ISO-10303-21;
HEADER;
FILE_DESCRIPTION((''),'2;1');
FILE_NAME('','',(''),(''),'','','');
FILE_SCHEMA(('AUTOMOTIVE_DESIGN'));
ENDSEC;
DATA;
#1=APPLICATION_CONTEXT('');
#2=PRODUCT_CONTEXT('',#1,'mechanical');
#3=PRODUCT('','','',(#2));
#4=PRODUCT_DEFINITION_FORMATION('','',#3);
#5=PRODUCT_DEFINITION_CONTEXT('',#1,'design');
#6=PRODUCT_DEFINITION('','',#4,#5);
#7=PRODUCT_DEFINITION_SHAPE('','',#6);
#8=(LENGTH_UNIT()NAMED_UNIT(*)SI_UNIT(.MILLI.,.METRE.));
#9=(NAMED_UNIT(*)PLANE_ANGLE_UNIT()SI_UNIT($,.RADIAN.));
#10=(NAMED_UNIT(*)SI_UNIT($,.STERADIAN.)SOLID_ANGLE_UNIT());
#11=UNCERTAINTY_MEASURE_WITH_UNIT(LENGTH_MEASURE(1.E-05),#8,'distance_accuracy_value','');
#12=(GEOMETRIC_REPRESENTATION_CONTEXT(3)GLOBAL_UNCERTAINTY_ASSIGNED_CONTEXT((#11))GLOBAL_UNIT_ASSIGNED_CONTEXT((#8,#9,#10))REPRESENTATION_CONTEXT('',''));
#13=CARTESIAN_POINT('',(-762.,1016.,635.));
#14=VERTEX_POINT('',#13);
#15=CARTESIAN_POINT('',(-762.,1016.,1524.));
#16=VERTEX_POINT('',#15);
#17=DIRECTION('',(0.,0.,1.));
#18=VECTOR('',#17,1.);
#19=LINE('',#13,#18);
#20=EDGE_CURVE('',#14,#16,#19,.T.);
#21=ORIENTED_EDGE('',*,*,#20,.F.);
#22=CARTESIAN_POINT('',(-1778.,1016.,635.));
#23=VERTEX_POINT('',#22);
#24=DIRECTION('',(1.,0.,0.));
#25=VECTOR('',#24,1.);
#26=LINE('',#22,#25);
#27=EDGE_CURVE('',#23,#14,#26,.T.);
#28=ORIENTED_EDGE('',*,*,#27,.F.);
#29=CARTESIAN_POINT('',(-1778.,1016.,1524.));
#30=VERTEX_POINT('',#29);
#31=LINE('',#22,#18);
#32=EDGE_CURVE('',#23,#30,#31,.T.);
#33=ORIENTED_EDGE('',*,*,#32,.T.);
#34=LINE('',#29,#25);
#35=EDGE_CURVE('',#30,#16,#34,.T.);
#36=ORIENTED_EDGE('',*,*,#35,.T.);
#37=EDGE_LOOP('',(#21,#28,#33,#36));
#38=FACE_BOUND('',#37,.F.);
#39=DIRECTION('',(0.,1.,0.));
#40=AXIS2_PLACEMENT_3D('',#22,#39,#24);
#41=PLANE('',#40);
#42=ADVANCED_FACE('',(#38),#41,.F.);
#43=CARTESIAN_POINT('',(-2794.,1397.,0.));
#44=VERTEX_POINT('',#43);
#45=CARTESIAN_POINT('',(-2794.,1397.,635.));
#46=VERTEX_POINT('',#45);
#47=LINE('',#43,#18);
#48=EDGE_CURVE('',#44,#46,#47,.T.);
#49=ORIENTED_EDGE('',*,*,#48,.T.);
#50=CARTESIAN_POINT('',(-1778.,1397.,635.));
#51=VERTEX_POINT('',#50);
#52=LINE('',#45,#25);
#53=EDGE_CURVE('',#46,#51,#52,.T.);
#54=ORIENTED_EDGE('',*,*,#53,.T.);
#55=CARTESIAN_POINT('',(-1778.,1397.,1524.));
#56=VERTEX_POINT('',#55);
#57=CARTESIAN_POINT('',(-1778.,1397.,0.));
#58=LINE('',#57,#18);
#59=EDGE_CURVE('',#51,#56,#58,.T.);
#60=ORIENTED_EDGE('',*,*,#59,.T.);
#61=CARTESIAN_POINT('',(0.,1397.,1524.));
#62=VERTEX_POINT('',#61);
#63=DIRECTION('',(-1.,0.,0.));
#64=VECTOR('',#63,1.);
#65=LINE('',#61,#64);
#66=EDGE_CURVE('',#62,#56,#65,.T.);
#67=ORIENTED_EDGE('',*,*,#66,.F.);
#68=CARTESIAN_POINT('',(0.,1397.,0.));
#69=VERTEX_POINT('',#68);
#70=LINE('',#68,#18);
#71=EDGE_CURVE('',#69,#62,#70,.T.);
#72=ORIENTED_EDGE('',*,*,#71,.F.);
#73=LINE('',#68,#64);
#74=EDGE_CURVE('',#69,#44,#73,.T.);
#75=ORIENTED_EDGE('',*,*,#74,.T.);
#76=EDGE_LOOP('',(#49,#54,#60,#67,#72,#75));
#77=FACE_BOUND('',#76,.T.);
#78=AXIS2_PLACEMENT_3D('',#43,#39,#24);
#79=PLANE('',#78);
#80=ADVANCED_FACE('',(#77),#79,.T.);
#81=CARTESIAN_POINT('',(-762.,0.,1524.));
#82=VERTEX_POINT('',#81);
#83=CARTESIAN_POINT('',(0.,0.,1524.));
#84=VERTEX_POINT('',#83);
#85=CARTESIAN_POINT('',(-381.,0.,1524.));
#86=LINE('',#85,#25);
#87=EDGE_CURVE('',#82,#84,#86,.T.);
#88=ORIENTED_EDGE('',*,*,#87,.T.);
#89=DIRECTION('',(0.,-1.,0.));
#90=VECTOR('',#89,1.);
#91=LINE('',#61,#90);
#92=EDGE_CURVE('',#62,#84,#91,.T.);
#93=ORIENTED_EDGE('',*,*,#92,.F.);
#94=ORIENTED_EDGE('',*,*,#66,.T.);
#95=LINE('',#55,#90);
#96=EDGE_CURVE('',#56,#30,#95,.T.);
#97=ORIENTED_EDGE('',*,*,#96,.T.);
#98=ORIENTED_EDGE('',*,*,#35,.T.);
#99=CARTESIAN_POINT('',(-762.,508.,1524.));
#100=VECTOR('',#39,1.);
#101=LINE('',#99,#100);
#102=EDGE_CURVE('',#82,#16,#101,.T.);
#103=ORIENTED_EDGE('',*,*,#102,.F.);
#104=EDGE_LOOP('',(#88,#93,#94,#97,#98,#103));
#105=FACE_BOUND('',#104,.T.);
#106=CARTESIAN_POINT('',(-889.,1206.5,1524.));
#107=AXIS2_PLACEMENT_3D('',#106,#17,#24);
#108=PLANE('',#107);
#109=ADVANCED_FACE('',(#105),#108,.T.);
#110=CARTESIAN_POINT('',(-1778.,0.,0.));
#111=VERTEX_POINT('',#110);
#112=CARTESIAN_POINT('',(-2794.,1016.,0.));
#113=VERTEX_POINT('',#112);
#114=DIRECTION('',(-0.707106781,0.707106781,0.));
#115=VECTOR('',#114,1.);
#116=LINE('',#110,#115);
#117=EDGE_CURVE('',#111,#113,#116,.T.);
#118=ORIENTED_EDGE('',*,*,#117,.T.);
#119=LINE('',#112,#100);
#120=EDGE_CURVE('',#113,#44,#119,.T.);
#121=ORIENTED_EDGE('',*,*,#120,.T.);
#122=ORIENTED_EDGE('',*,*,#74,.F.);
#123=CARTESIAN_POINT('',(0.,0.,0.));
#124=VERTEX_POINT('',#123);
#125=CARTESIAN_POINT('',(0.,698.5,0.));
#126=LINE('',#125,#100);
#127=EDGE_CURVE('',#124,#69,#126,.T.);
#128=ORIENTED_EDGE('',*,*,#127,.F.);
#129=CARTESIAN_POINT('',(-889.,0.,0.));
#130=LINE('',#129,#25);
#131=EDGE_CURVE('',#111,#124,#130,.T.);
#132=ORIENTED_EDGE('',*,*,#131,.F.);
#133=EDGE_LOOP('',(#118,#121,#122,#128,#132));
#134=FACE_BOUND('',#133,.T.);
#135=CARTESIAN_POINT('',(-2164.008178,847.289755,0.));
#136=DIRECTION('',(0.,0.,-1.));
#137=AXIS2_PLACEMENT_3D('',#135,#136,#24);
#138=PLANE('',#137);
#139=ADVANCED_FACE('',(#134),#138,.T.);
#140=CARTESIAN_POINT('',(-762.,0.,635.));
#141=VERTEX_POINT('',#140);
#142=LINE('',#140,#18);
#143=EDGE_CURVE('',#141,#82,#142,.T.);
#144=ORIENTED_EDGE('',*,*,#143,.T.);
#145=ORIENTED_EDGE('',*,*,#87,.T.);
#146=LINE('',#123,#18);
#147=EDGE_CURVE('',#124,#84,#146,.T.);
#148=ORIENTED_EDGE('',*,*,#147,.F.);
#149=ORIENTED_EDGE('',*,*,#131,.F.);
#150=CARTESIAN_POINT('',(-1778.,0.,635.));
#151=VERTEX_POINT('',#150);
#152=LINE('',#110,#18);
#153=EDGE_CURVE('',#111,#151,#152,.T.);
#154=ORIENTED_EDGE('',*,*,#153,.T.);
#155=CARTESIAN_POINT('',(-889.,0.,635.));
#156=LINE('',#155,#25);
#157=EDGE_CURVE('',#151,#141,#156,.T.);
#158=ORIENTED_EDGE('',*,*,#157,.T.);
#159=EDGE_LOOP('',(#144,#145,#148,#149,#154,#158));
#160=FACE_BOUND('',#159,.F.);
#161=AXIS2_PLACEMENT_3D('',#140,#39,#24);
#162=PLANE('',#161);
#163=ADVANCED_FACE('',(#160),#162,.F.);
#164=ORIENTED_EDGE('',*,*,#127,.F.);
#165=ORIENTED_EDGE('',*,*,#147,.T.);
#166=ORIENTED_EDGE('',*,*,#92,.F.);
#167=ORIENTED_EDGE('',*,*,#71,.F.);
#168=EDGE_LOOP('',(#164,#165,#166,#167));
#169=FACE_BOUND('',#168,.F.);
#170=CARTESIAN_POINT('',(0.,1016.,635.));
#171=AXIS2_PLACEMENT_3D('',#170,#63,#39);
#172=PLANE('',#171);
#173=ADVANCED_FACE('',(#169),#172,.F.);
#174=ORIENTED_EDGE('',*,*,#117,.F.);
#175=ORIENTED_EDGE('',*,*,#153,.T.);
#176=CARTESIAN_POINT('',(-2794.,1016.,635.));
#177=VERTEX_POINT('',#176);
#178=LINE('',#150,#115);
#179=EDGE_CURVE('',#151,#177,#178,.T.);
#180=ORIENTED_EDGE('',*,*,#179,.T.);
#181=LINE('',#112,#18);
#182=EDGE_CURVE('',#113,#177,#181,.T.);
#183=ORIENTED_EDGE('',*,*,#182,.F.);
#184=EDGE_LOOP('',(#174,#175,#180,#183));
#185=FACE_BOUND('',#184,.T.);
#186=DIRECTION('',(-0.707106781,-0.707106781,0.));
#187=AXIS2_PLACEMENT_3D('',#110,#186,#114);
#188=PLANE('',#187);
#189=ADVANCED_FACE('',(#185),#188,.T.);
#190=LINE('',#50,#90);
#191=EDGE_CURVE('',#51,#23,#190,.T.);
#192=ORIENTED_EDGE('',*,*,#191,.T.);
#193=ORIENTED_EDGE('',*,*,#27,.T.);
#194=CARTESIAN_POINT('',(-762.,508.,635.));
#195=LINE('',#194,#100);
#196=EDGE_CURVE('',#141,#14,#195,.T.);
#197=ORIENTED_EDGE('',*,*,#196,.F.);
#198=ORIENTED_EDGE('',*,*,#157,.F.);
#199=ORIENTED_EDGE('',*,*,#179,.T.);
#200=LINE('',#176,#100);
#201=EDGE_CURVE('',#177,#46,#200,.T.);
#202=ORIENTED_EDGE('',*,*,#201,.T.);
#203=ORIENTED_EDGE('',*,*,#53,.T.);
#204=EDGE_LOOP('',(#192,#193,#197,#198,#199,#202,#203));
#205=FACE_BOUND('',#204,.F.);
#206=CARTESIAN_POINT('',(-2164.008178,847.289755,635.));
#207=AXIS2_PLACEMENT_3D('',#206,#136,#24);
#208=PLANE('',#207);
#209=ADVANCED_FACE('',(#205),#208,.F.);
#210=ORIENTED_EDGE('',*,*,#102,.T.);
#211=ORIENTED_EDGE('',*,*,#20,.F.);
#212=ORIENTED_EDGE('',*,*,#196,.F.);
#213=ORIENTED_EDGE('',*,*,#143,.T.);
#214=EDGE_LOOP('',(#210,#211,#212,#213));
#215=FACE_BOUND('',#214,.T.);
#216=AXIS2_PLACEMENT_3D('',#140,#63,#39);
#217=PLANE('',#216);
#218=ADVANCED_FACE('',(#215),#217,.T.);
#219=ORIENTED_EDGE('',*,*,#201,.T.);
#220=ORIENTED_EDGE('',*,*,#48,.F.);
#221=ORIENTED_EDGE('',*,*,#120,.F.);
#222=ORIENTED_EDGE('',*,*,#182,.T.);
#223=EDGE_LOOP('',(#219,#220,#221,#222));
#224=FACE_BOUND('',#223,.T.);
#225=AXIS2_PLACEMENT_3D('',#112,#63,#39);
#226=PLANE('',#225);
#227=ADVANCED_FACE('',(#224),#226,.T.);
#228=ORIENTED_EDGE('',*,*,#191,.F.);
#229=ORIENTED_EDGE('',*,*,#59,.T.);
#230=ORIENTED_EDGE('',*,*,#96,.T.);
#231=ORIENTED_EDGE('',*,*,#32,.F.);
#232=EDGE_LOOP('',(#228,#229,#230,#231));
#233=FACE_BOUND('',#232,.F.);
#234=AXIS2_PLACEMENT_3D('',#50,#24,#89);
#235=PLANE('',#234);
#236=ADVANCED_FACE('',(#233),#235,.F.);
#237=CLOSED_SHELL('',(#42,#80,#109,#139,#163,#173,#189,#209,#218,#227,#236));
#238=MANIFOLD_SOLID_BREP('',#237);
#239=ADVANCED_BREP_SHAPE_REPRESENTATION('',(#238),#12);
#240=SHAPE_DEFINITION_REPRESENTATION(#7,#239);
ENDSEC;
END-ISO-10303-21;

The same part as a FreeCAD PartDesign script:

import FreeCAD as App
import Part
import Sketcher

V = App.Vector
Q = App.Units.Quantity


def add_polygon(sketch, points):
    """Adds a closed chain of lines whose ends are joined by coincident constraints."""
    first, n = sketch.GeometryCount, len(points)
    for a, b in zip(points, points[1:] + points[:1]):
        sketch.addGeometry(Part.LineSegment(App.Vector(*a, 0), App.Vector(*b, 0)), False)
    for i in range(n):
        sketch.addConstraint(Sketcher.Constraint("Coincident", first + i, 2, first + (i + 1) % n, 1))

doc = App.newDocument("Part")
body = doc.addObject("PartDesign::Body", "Body")

# Sketch on XY plane
sketch1 = body.newObject("Sketcher::SketchObject", "Sketch")
sketch1.AttachmentSupport = (doc.getObject("XY_Plane"), [""])
sketch1.MapMode = "FlatFace"
add_polygon(sketch1, [(-1778, 1397), (-1778, 0), (0, 0), (0, 1397)])  # lines 0-3
sketch1.addConstraint(Sketcher.Constraint("Vertical", 0))
sketch1.addConstraint(Sketcher.Constraint("Horizontal", 1))
sketch1.addConstraint(Sketcher.Constraint("Vertical", 2))
sketch1.addConstraint(Sketcher.Constraint("Horizontal", 3))
sketch1.addConstraint(Sketcher.Constraint("Coincident", 1, 2, -1, 1))
sketch1.addConstraint(Sketcher.Constraint("DistanceX", 1, 1, 1, 2, Q("70 in")))
sketch1.addConstraint(Sketcher.Constraint("DistanceY", 0, 2, 0, 1, Q("55 in")))
pad1 = body.newObject("PartDesign::Pad", "Pad")
pad1.Profile = sketch1
pad1.Length = Q("25 in")

# Sketch on XY plane
sketch2 = body.newObject("Sketcher::SketchObject", "Sketch001")
sketch2.AttachmentSupport = (doc.getObject("XY_Plane"), [""])
sketch2.MapMode = "FlatFace"
sketch2.AttachmentOffset = App.Placement(V(0, 0, 25 * 25.4), App.Rotation())
add_polygon(sketch2, [(-762, 1016), (-762, 0), (0, 0), (0, 1016)])  # lines 0-3
sketch2.addConstraint(Sketcher.Constraint("Vertical", 0))
sketch2.addConstraint(Sketcher.Constraint("Horizontal", 1))
sketch2.addConstraint(Sketcher.Constraint("Vertical", 2))
sketch2.addConstraint(Sketcher.Constraint("Horizontal", 3))
sketch2.addConstraint(Sketcher.Constraint("Coincident", 1, 2, -1, 1))
sketch2.addConstraint(Sketcher.Constraint("DistanceX", 1, 1, 1, 2, Q("30 in")))
sketch2.addConstraint(Sketcher.Constraint("DistanceY", 0, 2, 0, 1, Q("40 in")))
pad2 = body.newObject("PartDesign::Pad", "Pad001")
pad2.Profile = sketch2
pad2.Length = Q("45 in")

# Sketch on XY plane
sketch3 = body.newObject("Sketcher::SketchObject", "Sketch002")
sketch3.AttachmentSupport = (doc.getObject("XY_Plane"), [""])
sketch3.MapMode = "FlatFace"
sketch3.AttachmentOffset = App.Placement(V(0, 0, 25 * 25.4), App.Rotation())
add_polygon(sketch3, [(0, 1016), (0, 1397), (-1778, 1397), (-1778, 1016)])  # lines 0-3
sketch3.addConstraint(Sketcher.Constraint("Vertical", 0))
sketch3.addConstraint(Sketcher.Constraint("Horizontal", 1))
sketch3.addConstraint(Sketcher.Constraint("Vertical", 2))
sketch3.addConstraint(Sketcher.Constraint("Horizontal", 3))
sketch3.addConstraint(Sketcher.Constraint("PointOnObject", 0, 2, -2))
sketch3.addConstraint(Sketcher.Constraint("DistanceX", 1, 2, 1, 1, Q("70 in")))
sketch3.addConstraint(Sketcher.Constraint("DistanceY", 0, 1, 0, 2, Q("15 in")))
sketch3.addConstraint(Sketcher.Constraint("DistanceY", -1, 1, 0, 2, Q("55 in")))
pad3 = body.newObject("PartDesign::Pad", "Pad002")
pad3.Profile = sketch3
pad3.Length = Q("35 in")

# Sketch on XY plane
sketch4 = body.newObject("Sketcher::SketchObject", "Sketch003")
sketch4.AttachmentSupport = (doc.getObject("XY_Plane"), [""])
sketch4.MapMode = "FlatFace"
sketch4.AttachmentOffset = App.Placement(V(0, 0, 70 * 25.4), App.Rotation())
add_polygon(sketch4, [(-762, 1016), (-762, 0), (0, 0), (0, 1016)])  # lines 0-3
sketch4.addConstraint(Sketcher.Constraint("Vertical", 0))
sketch4.addConstraint(Sketcher.Constraint("Horizontal", 1))
sketch4.addConstraint(Sketcher.Constraint("Vertical", 2))
sketch4.addConstraint(Sketcher.Constraint("Horizontal", 3))
sketch4.addConstraint(Sketcher.Constraint("Coincident", 1, 2, -1, 1))
sketch4.addConstraint(Sketcher.Constraint("DistanceX", 1, 1, 1, 2, Q("30 in")))
sketch4.addConstraint(Sketcher.Constraint("DistanceY", 0, 2, 0, 1, Q("40 in")))
pocket1 = body.newObject("PartDesign::Pocket", "Pocket")
pocket1.Profile = sketch4
pocket1.Length = Q("10 in")

# Sketch on XY plane
sketch5 = body.newObject("Sketcher::SketchObject", "Sketch004")
sketch5.AttachmentSupport = (doc.getObject("XY_Plane"), [""])
sketch5.MapMode = "FlatFace"
add_polygon(sketch5, [(-2794, 1397), (-1778, 1397), (-1778, 0), (-2794, 1016)])  # lines 0-3
sketch5.addConstraint(Sketcher.Constraint("Horizontal", 0))
sketch5.addConstraint(Sketcher.Constraint("Vertical", 1))
sketch5.addConstraint(Sketcher.Constraint("Vertical", 3))
sketch5.addConstraint(Sketcher.Constraint("PointOnObject", 1, 2, -1))
sketch5.addConstraint(Sketcher.Constraint("DistanceX", 0, 1, 0, 2, Q("40 in")))
sketch5.addConstraint(Sketcher.Constraint("DistanceY", 1, 2, 1, 1, Q("55 in")))
sketch5.addConstraint(Sketcher.Constraint("DistanceY", 3, 1, 3, 2, Q("15 in")))
sketch5.addConstraint(Sketcher.Constraint("DistanceX", 0, 2, -1, 1, Q("70 in")))
pad4 = body.newObject("PartDesign::Pad", "Pad003")
pad4.Profile = sketch5
pad4.Length = Q("25 in")

doc.recompute()
